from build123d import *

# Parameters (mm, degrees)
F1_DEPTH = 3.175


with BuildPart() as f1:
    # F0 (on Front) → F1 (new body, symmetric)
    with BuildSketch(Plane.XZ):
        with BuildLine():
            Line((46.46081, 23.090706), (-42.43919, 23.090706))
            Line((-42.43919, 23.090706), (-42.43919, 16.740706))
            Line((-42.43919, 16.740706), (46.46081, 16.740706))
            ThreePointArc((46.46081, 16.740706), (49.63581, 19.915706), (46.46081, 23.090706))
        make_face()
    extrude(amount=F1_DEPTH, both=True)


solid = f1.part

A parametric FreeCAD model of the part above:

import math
import FreeCAD as App
import Part
import Sketcher

V = App.Vector
Q = App.Units.Quantity

doc = App.newDocument("Part")
params = doc.addObject("Spreadsheet::Sheet", "Params")
for row, (alias, value) in enumerate([
    ("sketch1_width", "3.5 in"),
    ("sketch1_radius", "0.125 in"),
    ("pad1_length", "0.25 in"),
], start=1):
    params.set(f"A{row}", alias)
    params.set(f"B{row}", "=" + value)
    params.setAlias(f"B{row}", alias)

body = doc.addObject("PartDesign::Body", "Body")

sketch1 = body.newObject("Sketcher::SketchObject", "Sketch")
sketch1.AttachmentSupport = (doc.getObject("XZ_Plane"), [""])
sketch1.MapMode = "FlatFace"
sketch1.addGeometry([
    Part.LineSegment(V(46.5, 23.1, 0), V(-42.4, 23.1, 0)),
    Part.LineSegment(V(-42.4, 23.1, 0), V(-42.4, 16.7, 0)),
    Part.LineSegment(V(-42.4, 16.7, 0), V(46.5, 16.7, 0)),
    Part.ArcOfCircle(Part.Circle(V(46.5, 19.9, 0), V(0, 0, 1), 3.2), math.radians(-90), math.radians(90)),
], False)
sketch1.addConstraint([
    Sketcher.Constraint("Coincident", 0, 2, 1, 1),
    Sketcher.Constraint("Coincident", 1, 2, 2, 1),
    Sketcher.Constraint("Tangent", 2, 2, 3, 1),
    Sketcher.Constraint("Tangent", 3, 2, 0, 1),
    Sketcher.Constraint("Horizontal", 0),
    Sketcher.Constraint("Vertical", 1),
    Sketcher.Constraint("Horizontal", 2),
    Sketcher.Constraint("DistanceX", 0, 2, 0, 1, Q("3.5 in")),
    Sketcher.Constraint("Radius", 3, Q("0.125 in")),
    Sketcher.Constraint("DistanceX", -1, 1, 3, 3, 46.46081),
    Sketcher.Constraint("DistanceY", -1, 1, 3, 3, 19.915706),
])
sketch1.setExpression("Constraints[7]", "Params.sketch1_width")
sketch1.setExpression("Constraints[8]", "Params.sketch1_radius")
pad1 = body.newObject("PartDesign::Pad", "Pad")
pad1.Profile = sketch1
pad1.setExpression("Length", "Params.pad1_length")
pad1.Midplane = True

doc.recompute()
